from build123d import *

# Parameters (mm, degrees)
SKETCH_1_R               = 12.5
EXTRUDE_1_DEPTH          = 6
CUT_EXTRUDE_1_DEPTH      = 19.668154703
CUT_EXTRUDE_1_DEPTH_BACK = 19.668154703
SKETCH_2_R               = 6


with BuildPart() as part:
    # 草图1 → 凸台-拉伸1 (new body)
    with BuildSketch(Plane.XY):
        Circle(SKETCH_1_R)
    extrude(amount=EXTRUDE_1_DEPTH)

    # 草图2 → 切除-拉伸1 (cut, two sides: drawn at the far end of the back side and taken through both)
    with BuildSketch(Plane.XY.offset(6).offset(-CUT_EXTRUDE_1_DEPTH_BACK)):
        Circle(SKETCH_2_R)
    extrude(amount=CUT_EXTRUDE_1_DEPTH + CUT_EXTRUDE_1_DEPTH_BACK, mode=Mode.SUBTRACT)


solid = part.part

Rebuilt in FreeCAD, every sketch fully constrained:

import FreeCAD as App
import Part
import Sketcher
from FreeCAD import Vector
Q = App.Units.Quantity

doc = App.newDocument("Part")
params = doc.addObject("Spreadsheet::Sheet", "Params")
for row, (alias, value) in enumerate([
    ("sketch1_diameter", "25 mm"),
    ("pad1_length", "6 mm"),
    ("sketch2_diameter", "12 mm"),
], start=1):
    params.set(f"A{row}", alias)
    params.set(f"B{row}", "=" + value)
    params.setAlias(f"B{row}", alias)

body = doc.addObject("PartDesign::Body", "Body")

# Sketch on XY plane
sketch1 = body.newObject("Sketcher::SketchObject", "Sketch")
sketch1.AttachmentSupport = (doc.getObject("XY_Plane"), [""])
sketch1.MapMode = "FlatFace"
sketch1.addGeometry(Part.Circle(Vector(0, 0, 0), Vector(0, 0, 1), 12), False)
sketch1.addConstraint([
    Sketcher.Constraint("Coincident", 0, 3, -1, 1),
    Sketcher.Constraint("Diameter", 0, Q("25 mm")),
])
sketch1.setExpression("Constraints[1]", "Params.sketch1_diameter")
pad1 = body.newObject("PartDesign::Pad", "Pad")
pad1.Profile = sketch1
pad1.setExpression("Length", "Params.pad1_length")

# Sketch on XY plane
sketch2 = body.newObject("Sketcher::SketchObject", "Sketch001")
sketch2.AttachmentSupport = (doc.getObject("XY_Plane"), [""])
sketch2.MapMode = "FlatFace"
sketch2.AttachmentOffset = App.Placement(Vector(0, 0, 6), App.Rotation())
sketch2.addGeometry(Part.Circle(Vector(0, 0, 0), Vector(0, 0, 1), 6), False)
sketch2.addConstraint([
    Sketcher.Constraint("Coincident", 0, 3, -1, 1),
    Sketcher.Constraint("Diameter", 0, Q("12 mm")),
])
sketch2.setExpression("Constraints[1]", "Params.sketch2_diameter")
pocket1 = body.newObject("PartDesign::Pocket", "Pocket")
pocket1.Profile = sketch2
pocket1.Type = "ThroughAll"
pocket1.Midplane = True

doc.recompute()
